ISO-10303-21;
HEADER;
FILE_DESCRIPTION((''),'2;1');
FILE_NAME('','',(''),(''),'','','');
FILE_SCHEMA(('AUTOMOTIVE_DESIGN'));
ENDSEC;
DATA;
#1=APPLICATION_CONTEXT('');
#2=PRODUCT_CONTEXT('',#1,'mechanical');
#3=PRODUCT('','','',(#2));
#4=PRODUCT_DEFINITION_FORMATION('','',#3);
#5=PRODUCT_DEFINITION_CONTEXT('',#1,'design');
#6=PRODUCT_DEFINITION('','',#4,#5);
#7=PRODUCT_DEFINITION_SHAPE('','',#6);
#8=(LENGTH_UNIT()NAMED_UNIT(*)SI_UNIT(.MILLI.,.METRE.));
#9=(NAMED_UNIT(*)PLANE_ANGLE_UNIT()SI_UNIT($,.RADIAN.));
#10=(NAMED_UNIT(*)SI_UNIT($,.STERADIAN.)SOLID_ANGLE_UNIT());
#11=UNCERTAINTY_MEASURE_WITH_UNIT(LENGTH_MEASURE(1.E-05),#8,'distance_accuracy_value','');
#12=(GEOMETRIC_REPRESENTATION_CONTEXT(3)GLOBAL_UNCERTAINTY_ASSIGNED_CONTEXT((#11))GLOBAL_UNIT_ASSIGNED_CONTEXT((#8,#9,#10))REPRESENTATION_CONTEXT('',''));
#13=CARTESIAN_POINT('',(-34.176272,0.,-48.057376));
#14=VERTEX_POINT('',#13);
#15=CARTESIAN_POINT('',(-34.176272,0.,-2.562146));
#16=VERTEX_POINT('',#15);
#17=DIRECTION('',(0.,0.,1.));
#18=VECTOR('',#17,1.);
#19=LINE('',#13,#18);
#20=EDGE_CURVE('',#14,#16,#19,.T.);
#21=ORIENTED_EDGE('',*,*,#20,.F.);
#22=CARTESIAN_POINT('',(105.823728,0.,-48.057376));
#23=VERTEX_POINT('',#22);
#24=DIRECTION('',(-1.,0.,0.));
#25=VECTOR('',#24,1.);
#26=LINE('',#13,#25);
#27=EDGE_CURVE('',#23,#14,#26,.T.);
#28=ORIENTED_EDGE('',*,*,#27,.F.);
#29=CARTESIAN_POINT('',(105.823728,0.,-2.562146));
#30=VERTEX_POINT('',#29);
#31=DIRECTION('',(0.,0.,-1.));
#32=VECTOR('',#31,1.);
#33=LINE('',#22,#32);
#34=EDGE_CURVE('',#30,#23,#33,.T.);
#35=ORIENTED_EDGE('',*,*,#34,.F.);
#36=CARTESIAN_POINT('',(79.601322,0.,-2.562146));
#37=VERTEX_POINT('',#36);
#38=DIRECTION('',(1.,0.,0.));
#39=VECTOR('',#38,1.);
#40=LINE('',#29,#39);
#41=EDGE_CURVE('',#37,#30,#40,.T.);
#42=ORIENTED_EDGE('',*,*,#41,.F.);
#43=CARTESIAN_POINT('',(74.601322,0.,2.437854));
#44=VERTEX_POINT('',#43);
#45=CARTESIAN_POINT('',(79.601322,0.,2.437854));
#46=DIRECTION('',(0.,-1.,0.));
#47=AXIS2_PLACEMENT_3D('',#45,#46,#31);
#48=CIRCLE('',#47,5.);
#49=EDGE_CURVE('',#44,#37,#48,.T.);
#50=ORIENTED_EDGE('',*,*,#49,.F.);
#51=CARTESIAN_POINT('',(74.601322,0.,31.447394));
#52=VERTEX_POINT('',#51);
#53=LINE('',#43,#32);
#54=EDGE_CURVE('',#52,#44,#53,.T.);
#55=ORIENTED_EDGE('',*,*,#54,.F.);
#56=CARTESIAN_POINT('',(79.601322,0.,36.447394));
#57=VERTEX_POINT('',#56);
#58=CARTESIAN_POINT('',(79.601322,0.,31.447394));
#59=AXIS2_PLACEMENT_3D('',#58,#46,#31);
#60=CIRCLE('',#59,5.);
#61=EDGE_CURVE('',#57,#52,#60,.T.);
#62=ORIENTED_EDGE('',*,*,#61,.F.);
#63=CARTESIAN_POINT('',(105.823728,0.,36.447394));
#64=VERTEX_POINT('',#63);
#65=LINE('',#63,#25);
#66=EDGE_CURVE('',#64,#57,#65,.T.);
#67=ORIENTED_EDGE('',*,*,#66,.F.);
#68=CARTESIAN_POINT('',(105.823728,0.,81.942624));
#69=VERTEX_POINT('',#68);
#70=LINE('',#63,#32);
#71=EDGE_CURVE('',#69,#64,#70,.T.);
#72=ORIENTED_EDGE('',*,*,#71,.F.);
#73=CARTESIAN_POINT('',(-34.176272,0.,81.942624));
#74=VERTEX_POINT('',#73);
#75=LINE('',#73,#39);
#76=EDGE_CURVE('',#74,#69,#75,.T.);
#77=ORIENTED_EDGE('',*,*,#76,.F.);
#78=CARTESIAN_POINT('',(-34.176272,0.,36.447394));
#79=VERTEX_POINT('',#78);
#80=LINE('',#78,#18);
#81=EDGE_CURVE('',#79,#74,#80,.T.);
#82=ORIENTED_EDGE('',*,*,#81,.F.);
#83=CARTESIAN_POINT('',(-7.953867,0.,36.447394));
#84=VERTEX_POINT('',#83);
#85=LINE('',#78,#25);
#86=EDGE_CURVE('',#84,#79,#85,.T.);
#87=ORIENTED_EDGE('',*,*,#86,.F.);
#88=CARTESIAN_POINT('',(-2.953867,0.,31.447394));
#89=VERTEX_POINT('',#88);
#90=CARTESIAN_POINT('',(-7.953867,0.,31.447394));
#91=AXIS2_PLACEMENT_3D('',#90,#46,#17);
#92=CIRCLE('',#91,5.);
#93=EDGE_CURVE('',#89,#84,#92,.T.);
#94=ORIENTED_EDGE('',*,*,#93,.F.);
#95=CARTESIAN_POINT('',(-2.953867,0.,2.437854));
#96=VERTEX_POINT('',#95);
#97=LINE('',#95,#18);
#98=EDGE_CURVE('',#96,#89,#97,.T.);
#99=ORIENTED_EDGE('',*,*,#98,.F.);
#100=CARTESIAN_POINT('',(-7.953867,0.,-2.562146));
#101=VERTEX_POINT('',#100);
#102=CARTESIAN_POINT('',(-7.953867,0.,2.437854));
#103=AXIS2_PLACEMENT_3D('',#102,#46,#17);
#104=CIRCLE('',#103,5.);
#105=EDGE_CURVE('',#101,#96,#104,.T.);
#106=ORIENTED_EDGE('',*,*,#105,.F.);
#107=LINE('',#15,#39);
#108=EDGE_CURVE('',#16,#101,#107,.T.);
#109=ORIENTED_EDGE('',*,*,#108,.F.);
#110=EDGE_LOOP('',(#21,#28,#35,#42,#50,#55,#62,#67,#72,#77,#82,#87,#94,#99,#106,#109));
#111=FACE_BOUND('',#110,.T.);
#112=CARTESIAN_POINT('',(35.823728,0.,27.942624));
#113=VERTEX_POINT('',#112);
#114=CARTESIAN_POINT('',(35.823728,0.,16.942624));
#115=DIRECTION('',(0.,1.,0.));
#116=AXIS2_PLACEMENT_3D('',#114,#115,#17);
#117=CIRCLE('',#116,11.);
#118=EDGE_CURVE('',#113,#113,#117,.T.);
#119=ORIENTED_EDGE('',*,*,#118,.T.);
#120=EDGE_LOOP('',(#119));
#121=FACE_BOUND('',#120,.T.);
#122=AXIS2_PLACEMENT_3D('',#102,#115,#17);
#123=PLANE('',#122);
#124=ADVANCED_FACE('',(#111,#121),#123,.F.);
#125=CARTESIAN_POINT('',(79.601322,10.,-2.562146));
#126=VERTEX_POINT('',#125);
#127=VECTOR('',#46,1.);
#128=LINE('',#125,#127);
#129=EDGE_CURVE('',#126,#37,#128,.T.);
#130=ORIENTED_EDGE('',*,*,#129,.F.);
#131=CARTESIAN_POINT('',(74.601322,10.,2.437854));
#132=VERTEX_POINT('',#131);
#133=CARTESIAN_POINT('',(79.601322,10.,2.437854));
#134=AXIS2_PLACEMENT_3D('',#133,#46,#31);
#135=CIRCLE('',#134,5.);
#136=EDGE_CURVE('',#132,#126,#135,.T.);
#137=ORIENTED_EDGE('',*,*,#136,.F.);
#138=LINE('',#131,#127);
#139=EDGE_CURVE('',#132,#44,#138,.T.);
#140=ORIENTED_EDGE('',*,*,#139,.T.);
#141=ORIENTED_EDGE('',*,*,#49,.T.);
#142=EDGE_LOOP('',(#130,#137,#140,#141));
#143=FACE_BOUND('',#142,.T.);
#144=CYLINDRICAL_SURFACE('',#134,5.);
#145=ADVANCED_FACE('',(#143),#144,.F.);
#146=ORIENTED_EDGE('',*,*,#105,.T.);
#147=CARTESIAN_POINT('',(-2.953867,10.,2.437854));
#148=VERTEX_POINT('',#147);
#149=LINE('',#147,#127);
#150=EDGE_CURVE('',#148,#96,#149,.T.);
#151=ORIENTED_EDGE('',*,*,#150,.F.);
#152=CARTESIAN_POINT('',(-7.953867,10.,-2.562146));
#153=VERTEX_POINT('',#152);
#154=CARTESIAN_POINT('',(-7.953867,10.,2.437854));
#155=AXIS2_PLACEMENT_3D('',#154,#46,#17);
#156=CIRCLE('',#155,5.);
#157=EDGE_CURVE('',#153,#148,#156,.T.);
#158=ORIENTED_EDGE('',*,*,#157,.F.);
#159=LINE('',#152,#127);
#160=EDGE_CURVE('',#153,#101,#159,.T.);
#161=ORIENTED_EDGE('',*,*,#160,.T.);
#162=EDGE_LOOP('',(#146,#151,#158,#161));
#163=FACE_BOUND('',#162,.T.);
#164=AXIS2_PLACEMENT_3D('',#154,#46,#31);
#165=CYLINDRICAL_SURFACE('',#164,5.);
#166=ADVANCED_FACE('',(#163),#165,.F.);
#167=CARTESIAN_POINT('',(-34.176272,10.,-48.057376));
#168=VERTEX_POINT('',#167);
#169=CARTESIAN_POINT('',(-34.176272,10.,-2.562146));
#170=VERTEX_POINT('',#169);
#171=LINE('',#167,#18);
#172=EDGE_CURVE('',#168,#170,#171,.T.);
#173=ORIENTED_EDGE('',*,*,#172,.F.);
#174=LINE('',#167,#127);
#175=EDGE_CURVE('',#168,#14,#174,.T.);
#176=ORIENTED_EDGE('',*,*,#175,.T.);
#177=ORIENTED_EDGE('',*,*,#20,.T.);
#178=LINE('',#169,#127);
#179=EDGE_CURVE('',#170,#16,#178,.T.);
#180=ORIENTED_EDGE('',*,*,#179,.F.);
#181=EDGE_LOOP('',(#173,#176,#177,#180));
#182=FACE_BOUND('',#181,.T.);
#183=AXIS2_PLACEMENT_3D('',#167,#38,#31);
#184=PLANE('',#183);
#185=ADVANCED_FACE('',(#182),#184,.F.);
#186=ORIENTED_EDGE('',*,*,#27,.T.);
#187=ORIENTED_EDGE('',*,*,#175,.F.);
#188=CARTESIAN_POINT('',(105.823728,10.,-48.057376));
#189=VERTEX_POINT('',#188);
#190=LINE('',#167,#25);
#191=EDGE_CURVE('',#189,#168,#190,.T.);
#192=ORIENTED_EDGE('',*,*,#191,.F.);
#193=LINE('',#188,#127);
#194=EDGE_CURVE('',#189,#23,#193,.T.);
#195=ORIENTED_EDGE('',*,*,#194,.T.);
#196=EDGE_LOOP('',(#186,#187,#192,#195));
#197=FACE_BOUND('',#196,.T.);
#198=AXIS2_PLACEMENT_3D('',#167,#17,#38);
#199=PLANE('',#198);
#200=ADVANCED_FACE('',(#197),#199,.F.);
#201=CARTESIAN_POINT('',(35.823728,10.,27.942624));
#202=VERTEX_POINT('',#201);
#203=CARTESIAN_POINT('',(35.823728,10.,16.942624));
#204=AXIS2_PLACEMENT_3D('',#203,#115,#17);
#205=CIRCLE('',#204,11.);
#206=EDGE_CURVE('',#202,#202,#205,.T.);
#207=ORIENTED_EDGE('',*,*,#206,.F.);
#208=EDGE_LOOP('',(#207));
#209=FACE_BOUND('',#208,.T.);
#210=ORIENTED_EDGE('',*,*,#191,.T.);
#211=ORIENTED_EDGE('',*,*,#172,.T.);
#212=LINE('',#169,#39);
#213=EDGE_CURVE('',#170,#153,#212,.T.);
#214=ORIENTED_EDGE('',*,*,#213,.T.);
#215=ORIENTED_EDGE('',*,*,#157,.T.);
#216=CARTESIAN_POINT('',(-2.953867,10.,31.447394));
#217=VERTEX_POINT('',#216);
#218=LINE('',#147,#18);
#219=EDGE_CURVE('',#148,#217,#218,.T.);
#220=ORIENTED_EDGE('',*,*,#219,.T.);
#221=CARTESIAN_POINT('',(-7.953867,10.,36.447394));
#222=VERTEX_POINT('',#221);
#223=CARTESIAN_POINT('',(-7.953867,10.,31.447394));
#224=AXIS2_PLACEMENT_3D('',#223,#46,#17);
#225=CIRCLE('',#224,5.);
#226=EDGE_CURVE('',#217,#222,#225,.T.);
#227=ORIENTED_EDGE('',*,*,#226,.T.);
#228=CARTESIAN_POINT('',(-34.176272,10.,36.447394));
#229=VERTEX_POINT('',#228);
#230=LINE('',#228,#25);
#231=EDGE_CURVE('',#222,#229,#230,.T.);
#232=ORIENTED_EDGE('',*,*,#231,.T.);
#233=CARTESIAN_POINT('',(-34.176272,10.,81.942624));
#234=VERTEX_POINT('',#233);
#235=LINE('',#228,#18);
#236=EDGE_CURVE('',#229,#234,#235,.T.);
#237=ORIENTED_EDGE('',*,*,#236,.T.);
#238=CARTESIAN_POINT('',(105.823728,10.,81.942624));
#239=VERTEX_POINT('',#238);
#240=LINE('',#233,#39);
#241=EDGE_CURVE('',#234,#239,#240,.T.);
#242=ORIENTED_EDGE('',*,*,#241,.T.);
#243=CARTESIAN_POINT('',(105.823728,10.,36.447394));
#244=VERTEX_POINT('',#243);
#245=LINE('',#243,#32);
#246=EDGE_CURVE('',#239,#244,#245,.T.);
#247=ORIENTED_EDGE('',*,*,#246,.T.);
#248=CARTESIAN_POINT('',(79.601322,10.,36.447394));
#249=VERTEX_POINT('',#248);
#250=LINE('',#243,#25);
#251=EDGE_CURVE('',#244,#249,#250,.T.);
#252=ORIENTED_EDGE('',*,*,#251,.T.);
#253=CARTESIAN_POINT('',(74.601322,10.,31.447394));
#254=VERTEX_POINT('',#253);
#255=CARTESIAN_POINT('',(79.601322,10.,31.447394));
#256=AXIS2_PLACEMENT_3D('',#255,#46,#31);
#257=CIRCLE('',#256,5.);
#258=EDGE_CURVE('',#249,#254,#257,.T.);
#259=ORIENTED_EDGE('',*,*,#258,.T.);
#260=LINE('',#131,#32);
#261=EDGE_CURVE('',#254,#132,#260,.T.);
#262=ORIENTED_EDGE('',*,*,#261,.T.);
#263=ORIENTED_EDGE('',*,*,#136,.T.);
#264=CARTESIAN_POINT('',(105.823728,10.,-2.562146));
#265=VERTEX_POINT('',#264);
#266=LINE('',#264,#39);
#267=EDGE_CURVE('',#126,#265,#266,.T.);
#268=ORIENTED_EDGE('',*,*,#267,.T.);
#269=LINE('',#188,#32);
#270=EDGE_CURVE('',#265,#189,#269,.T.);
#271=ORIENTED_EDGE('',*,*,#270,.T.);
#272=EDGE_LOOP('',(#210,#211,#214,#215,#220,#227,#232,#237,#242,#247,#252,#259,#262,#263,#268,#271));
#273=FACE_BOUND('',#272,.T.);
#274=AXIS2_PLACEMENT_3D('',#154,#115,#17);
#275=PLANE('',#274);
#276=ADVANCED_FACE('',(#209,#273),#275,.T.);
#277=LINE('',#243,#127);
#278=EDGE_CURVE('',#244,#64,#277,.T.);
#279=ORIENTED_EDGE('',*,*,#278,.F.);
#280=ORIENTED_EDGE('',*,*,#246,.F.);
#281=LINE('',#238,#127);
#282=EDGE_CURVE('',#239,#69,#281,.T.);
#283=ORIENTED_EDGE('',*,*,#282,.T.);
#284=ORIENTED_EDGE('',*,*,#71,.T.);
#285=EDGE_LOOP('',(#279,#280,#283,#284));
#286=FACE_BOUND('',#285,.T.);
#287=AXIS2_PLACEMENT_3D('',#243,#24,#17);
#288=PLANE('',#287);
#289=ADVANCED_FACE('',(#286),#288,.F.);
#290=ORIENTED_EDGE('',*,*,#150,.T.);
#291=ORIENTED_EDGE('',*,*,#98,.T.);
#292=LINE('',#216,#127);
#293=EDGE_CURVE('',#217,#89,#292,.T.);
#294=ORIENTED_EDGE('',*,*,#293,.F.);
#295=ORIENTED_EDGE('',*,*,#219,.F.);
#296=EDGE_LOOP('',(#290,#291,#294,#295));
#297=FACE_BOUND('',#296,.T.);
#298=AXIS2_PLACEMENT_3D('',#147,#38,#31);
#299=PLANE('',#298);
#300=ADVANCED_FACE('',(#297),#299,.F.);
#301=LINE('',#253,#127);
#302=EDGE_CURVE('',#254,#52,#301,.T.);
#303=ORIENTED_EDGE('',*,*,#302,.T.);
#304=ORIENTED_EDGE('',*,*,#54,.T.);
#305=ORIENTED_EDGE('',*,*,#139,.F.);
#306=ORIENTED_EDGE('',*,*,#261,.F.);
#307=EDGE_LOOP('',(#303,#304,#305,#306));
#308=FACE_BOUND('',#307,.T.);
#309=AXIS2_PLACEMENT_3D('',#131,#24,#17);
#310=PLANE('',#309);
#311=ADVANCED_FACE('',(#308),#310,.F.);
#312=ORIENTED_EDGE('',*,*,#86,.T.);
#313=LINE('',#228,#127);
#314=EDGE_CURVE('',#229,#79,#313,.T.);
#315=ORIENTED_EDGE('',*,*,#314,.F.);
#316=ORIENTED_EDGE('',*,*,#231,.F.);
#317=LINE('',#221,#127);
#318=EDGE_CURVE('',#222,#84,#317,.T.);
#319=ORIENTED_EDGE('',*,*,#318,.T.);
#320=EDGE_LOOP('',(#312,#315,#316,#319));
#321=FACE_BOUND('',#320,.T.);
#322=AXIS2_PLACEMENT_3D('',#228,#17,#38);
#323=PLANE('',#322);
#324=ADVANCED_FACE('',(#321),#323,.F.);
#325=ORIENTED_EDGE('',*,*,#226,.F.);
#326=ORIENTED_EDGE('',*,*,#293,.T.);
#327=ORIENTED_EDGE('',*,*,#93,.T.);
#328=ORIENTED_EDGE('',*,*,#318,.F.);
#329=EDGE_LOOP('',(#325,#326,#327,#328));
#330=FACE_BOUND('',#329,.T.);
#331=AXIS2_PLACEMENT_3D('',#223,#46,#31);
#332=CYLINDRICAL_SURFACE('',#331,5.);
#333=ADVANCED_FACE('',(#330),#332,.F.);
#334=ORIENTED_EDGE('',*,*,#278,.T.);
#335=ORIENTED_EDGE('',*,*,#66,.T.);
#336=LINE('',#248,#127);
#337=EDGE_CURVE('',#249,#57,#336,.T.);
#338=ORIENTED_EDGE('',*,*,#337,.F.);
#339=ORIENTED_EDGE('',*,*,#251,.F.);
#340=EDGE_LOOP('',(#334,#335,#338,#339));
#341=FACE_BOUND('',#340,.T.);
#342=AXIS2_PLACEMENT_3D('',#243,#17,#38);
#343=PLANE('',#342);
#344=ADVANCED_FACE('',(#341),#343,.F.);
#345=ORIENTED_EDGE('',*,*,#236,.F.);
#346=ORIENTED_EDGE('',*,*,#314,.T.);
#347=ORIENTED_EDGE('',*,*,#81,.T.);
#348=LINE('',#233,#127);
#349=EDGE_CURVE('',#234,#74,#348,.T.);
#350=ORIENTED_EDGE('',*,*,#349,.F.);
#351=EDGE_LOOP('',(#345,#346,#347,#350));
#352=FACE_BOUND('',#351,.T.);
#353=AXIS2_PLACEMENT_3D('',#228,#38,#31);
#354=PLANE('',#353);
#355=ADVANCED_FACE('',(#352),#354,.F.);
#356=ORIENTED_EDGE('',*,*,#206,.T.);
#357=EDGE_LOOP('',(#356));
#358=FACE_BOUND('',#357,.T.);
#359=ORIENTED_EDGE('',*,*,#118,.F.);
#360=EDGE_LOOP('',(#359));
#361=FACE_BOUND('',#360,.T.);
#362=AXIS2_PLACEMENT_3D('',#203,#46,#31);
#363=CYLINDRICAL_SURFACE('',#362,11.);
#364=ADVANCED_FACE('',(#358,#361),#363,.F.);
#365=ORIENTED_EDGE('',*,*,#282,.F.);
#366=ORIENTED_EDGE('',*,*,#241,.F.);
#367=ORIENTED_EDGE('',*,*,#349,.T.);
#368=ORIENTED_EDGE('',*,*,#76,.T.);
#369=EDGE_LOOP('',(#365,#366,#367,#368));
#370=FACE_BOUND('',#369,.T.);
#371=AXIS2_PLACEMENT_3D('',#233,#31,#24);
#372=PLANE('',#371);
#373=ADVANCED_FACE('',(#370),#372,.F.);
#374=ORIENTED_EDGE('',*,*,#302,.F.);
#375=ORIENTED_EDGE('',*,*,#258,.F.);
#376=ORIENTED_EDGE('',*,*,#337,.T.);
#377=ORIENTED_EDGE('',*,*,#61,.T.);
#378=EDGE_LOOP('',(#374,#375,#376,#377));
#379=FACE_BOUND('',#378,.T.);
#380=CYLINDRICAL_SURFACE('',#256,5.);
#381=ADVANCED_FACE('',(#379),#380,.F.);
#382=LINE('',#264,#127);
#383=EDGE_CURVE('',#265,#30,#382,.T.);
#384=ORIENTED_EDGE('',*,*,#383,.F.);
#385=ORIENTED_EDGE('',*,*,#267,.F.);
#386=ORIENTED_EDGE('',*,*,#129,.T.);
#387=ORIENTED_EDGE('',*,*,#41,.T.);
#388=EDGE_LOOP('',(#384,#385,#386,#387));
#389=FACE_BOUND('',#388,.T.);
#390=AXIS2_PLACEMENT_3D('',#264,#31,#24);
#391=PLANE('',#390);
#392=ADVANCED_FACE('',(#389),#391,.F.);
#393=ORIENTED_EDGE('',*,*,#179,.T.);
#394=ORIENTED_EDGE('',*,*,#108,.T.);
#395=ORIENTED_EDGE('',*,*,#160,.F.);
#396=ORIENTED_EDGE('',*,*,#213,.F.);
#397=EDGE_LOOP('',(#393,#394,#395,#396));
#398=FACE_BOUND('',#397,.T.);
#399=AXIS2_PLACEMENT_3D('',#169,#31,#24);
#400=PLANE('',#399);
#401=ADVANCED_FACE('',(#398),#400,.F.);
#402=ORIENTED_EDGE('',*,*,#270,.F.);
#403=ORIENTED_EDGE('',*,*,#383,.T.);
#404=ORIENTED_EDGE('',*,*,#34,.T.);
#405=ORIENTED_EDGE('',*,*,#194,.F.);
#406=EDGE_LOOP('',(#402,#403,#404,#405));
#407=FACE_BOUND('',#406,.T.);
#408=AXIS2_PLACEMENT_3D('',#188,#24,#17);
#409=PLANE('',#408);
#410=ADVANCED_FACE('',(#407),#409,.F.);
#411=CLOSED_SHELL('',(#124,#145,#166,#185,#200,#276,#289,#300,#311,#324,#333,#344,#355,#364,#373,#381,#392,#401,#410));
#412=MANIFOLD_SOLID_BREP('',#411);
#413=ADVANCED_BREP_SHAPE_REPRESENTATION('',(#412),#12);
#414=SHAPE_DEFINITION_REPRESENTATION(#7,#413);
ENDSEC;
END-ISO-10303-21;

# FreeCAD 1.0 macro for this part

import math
import FreeCAD as App
import Part
import Sketcher
from FreeCAD import Vector
Q = App.Units.Quantity

doc = App.newDocument("Part")
body = doc.addObject("PartDesign::Body", "Body")

# Sketch on XZ plane
sketch1 = body.newObject("Sketcher::SketchObject", "Sketch")
sketch1.AttachmentSupport = (doc.getObject("XZ_Plane"), [""])
sketch1.MapMode = "FlatFace"
sketch1.addGeometry(Part.LineSegment(Vector(105.823728, -48.057376, 0), Vector(-34.176272, -48.057376, 0)), False)
sketch1.addGeometry(Part.LineSegment(Vector(-34.176272, -48.057376, 0), Vector(-34.176272, -2.562146, 0)), False)
sketch1.addGeometry(Part.LineSegment(Vector(-34.176272, -2.562146, 0), Vector(-7.953867, -2.562146, 0)), False)
sketch1.addGeometry(Part.ArcOfCircle(Part.Circle(Vector(-7.953867, 2.437854, 0), Vector(0, 0, 1), 5), math.radians(-90), math.radians(0)), False)
sketch1.addGeometry(Part.LineSegment(Vector(-2.953867, 2.437854, 0), Vector(-2.953867, 31.447394, 0)), False)
sketch1.addGeometry(Part.ArcOfCircle(Part.Circle(Vector(-7.953867, 31.447394, 0), Vector(0, 0, 1), 5), math.radians(0), math.radians(90)), False)
sketch1.addGeometry(Part.LineSegment(Vector(-7.953867, 36.447394, 0), Vector(-34.176272, 36.447394, 0)), False)
sketch1.addGeometry(Part.LineSegment(Vector(-34.176272, 36.447394, 0), Vector(-34.176272, 81.942624, 0)), False)
sketch1.addGeometry(Part.LineSegment(Vector(-34.176272, 81.942624, 0), Vector(105.823728, 81.942624, 0)), False)
sketch1.addGeometry(Part.LineSegment(Vector(105.823728, 81.942624, 0), Vector(105.823728, 36.447394, 0)), False)
sketch1.addGeometry(Part.LineSegment(Vector(105.823728, 36.447394, 0), Vector(79.601322, 36.447394, 0)), False)
sketch1.addGeometry(Part.ArcOfCircle(Part.Circle(Vector(79.601322, 31.447394, 0), Vector(0, 0, 1), 5), math.radians(90), math.radians(180)), False)
sketch1.addGeometry(Part.LineSegment(Vector(74.601322, 31.447394, 0), Vector(74.601322, 2.437854, 0)), False)
sketch1.addGeometry(Part.ArcOfCircle(Part.Circle(Vector(79.601322, 2.437854, 0), Vector(0, 0, 1), 5), math.radians(180), math.radians(270)), False)
sketch1.addGeometry(Part.LineSegment(Vector(79.601322, -2.562146, 0), Vector(105.823728, -2.562146, 0)), False)
sketch1.addGeometry(Part.LineSegment(Vector(105.823728, -2.562146, 0), Vector(105.823728, -48.057376, 0)), False)
sketch1.addGeometry(Part.Circle(Vector(35.823728, 16.942624, 0), Vector(0, 0, 1), 11), False)
sketch1.addConstraint(Sketcher.Constraint("Coincident", 0, 2, 1, 1))
sketch1.addConstraint(Sketcher.Constraint("Coincident", 1, 2, 2, 1))
sketch1.addConstraint(Sketcher.Constraint("Tangent", 2, 2, 3, 1))
sketch1.addConstraint(Sketcher.Constraint("Tangent", 3, 2, 4, 1))
sketch1.addConstraint(Sketcher.Constraint("Tangent", 4, 2, 5, 1))
sketch1.addConstraint(Sketcher.Constraint("Tangent", 5, 2, 6, 1))
sketch1.addConstraint(Sketcher.Constraint("Coincident", 6, 2, 7, 1))
sketch1.addConstraint(Sketcher.Constraint("Coincident", 7, 2, 8, 1))
sketch1.addConstraint(Sketcher.Constraint("Coincident", 8, 2, 9, 1))
sketch1.addConstraint(Sketcher.Constraint("Coincident", 9, 2, 10, 1))
sketch1.addConstraint(Sketcher.Constraint("Tangent", 10, 2, 11, 1))
sketch1.addConstraint(Sketcher.Constraint("Tangent", 11, 2, 12, 1))
sketch1.addConstraint(Sketcher.Constraint("Tangent", 12, 2, 13, 1))
sketch1.addConstraint(Sketcher.Constraint("Tangent", 13, 2, 14, 1))
sketch1.addConstraint(Sketcher.Constraint("Coincident", 14, 2, 15, 1))
sketch1.addConstraint(Sketcher.Constraint("Coincident", 15, 2, 0, 1))
sketch1.addConstraint(Sketcher.Constraint("Horizontal", 0))
sketch1.addConstraint(Sketcher.Constraint("Vertical", 1))
sketch1.addConstraint(Sketcher.Constraint("Horizontal", 2))
sketch1.addConstraint(Sketcher.Constraint("Vertical", 4))
sketch1.addConstraint(Sketcher.Constraint("Horizontal", 6))
sketch1.addConstraint(Sketcher.Constraint("Vertical", 7))
sketch1.addConstraint(Sketcher.Constraint("Horizontal", 8))
sketch1.addConstraint(Sketcher.Constraint("Vertical", 9))
sketch1.addConstraint(Sketcher.Constraint("Horizontal", 10))
sketch1.addConstraint(Sketcher.Constraint("Vertical", 12))
sketch1.addConstraint(Sketcher.Constraint("Horizontal", 14))
sketch1.addConstraint(Sketcher.Constraint("Vertical", 15))
sketch1.addConstraint(Sketcher.Constraint("Equal", 3, 5))
sketch1.addConstraint(Sketcher.Constraint("Equal", 5, 11))
sketch1.addConstraint(Sketcher.Constraint("Equal", 11, 13))
sketch1.addConstraint(Sketcher.Constraint("Horizontal", 5, 3, 11, 3))
sketch1.addConstraint(Sketcher.Constraint("Horizontal", 3, 3, 13, 3))
sketch1.addConstraint(Sketcher.Constraint("Vertical", 1, 2, 6, 2))
sketch1.addConstraint(Sketcher.Constraint("Vertical", 9, 2, 14, 2))
sketch1.addConstraint(Sketcher.Constraint("Equal", 6, 10))
sketch1.addConstraint(Sketcher.Constraint("Equal", 1, 7))
sketch1.addConstraint(Sketcher.Constraint("Diameter", 16, Q("22 mm")))
sketch1.addConstraint(Sketcher.Constraint("Radius", 3, Q("5 mm")))
sketch1.addConstraint(Sketcher.Constraint("DistanceX", 0, 2, 0, 1, Q("140 mm")))
sketch1.addConstraint(Sketcher.Constraint("DistanceX", 0, 2, 16, 3, Q("70 mm")))
sketch1.addConstraint(Sketcher.Constraint("DistanceY", 0, 2, 16, 3, Q("65 mm")))
sketch1.addConstraint(Sketcher.Constraint("DistanceY", 16, 3, 8, 2, Q("65 mm")))
sketch1.addConstraint(Sketcher.Constraint("DistanceY", 1, 1, 1, 2, Q("45.49523 mm")))
sketch1.addConstraint(Sketcher.Constraint("DistanceX", 2, 1, 2, 2, Q("26.222405 mm")))
sketch1.addConstraint(Sketcher.Constraint("DistanceX", 3, 3, -1, 1, Q("7.953867 mm")))
sketch1.addConstraint(Sketcher.Constraint("DistanceY", -1, 1, 3, 3, Q("2.437854 mm")))
pad1 = body.newObject("PartDesign::Pad", "Pad")
pad1.Profile = sketch1
pad1.Length = 10
pad1.Reversed = True

doc.recompute()
